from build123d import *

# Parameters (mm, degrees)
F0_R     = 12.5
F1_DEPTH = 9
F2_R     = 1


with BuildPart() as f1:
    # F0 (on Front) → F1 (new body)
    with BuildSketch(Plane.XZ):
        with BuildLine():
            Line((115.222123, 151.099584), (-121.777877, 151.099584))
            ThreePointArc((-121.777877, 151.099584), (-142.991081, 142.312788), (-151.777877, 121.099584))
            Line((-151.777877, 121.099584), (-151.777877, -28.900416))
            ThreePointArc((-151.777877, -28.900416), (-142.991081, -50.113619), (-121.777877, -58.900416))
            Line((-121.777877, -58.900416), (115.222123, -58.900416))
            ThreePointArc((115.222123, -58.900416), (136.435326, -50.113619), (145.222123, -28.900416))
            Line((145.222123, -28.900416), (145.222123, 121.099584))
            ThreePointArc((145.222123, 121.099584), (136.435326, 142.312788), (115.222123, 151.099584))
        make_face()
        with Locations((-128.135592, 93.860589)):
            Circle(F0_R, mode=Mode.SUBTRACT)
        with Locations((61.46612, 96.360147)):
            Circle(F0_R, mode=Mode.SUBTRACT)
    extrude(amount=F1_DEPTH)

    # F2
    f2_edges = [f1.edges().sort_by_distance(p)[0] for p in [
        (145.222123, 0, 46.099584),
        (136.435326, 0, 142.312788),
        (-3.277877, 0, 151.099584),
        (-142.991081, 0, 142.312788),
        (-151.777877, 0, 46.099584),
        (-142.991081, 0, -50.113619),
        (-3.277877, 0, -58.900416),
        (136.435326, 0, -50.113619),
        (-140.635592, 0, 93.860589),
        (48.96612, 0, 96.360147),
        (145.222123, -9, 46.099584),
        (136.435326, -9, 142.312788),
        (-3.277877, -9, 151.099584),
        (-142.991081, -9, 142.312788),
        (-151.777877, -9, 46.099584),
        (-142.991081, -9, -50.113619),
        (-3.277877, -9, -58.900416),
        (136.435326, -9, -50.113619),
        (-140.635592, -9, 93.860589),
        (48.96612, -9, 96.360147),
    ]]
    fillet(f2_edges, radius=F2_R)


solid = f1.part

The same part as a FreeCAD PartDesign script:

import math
import FreeCAD as App
import Part
import Sketcher
Q = App.Units.Quantity


def edges_at(feature, points):
    """Names of the edges that pass closest to the given points."""
    edges = feature.Shape.Edges
    near = lambda p: min(range(len(edges)), key=lambda i: edges[i].distToShape(Part.Vertex(*p))[0])
    return sorted({f"Edge{near(p) + 1}" for p in points})

doc = App.newDocument("Part")
body = doc.addObject("PartDesign::Body", "Body")

sketch1 = body.newObject("Sketcher::SketchObject", "Sketch")
sketch1.AttachmentSupport = (doc.getObject("XZ_Plane"), [""])
sketch1.MapMode = "FlatFace"
sketch1.addGeometry(Part.LineSegment(App.Vector(115, 151, 0), App.Vector(-122, 151, 0)), False)
sketch1.addGeometry(Part.ArcOfCircle(Part.Circle(App.Vector(-122, 121, 0), App.Vector(0, 0, 1), 30), math.radians(90), math.radians(180)), False)
sketch1.addGeometry(Part.LineSegment(App.Vector(-152, 121, 0), App.Vector(-152, -29, 0)), False)
sketch1.addGeometry(Part.ArcOfCircle(Part.Circle(App.Vector(-122, -29, 0), App.Vector(0, 0, 1), 30), math.radians(180), math.radians(270)), False)
sketch1.addGeometry(Part.LineSegment(App.Vector(-122, -59, 0), App.Vector(115, -59, 0)), False)
sketch1.addGeometry(Part.ArcOfCircle(Part.Circle(App.Vector(115, -29, 0), App.Vector(0, 0, 1), 30), math.radians(-90), math.radians(0)), False)
sketch1.addGeometry(Part.LineSegment(App.Vector(145, -29, 0), App.Vector(145, 121, 0)), False)
sketch1.addGeometry(Part.ArcOfCircle(Part.Circle(App.Vector(115, 121, 0), App.Vector(0, 0, 1), 30), math.radians(0), math.radians(90)), False)
sketch1.addGeometry(Part.Circle(App.Vector(-128, 94, 0), App.Vector(0, 0, 1), 12), False)
sketch1.addGeometry(Part.Circle(App.Vector(61, 96, 0), App.Vector(0, 0, 1), 12), False)
sketch1.addConstraint(Sketcher.Constraint("Tangent", 0, 2, 1, 1))
sketch1.addConstraint(Sketcher.Constraint("Tangent", 1, 2, 2, 1))
sketch1.addConstraint(Sketcher.Constraint("Tangent", 2, 2, 3, 1))
sketch1.addConstraint(Sketcher.Constraint("Tangent", 3, 2, 4, 1))
sketch1.addConstraint(Sketcher.Constraint("Tangent", 4, 2, 5, 1))
sketch1.addConstraint(Sketcher.Constraint("Tangent", 5, 2, 6, 1))
sketch1.addConstraint(Sketcher.Constraint("Tangent", 6, 2, 7, 1))
sketch1.addConstraint(Sketcher.Constraint("Tangent", 7, 2, 0, 1))
sketch1.addConstraint(Sketcher.Constraint("Horizontal", 0))
sketch1.addConstraint(Sketcher.Constraint("Vertical", 2))
sketch1.addConstraint(Sketcher.Constraint("Horizontal", 4))
sketch1.addConstraint(Sketcher.Constraint("Vertical", 6))
sketch1.addConstraint(Sketcher.Constraint("Equal", 1, 3))
sketch1.addConstraint(Sketcher.Constraint("Equal", 3, 5))
sketch1.addConstraint(Sketcher.Constraint("Equal", 5, 7))
sketch1.addConstraint(Sketcher.Constraint("Equal", 8, 9))
sketch1.addConstraint(Sketcher.Constraint("Diameter", 8, Q("25 mm")))
sketch1.addConstraint(Sketcher.Constraint("Radius", 1, Q("29.999998 mm")))
sketch1.addConstraint(Sketcher.Constraint("DistanceX", 0, 2, 0, 1, Q("237 mm")))
sketch1.addConstraint(Sketcher.Constraint("DistanceY", 2, 2, 2, 1, Q("150 mm")))
sketch1.addConstraint(Sketcher.Constraint("DistanceX", 9, 3, 5, 3, Q("53.756002 mm")))
sketch1.addConstraint(Sketcher.Constraint("DistanceX", 1, 3, -1, 1, Q("121.777879 mm")))
sketch1.addConstraint(Sketcher.Constraint("DistanceX", 8, 3, -1, 1, Q("128.135592 mm")))
sketch1.addConstraint(Sketcher.Constraint("DistanceY", -1, 1, 8, 3, Q("93.860589 mm")))
sketch1.addConstraint(Sketcher.Constraint("DistanceY", 5, 3, 9, 3, Q("125.260562 mm")))
sketch1.addConstraint(Sketcher.Constraint("DistanceY", -1, 1, 1, 3, Q("121.099586 mm")))
pad1 = body.newObject("PartDesign::Pad", "Pad")
pad1.Profile = sketch1
pad1.Length = 9
doc.recompute()

fillet = body.newObject("PartDesign::Fillet", "Fillet")
fillet.Base = (pad1, edges_at(pad1, [
    (145.222, 0, 46.1),
    (136.435, 0, 142.313),
    (-3.278, 0, 151.1),
    (-142.991, 0, 142.313),
    (-151.778, 0, 46.1),
    (-142.991, 0, -50.114),
    (-3.278, 0, -58.9),
    (136.435, 0, -50.114),
    (-140.636, 0, 93.861),
    (48.966, 0, 96.36),
    (145.222, -9, 46.1),
    (136.435, -9, 142.313),
    (-3.278, -9, 151.1),
    (-142.991, -9, 142.313),
    (-151.778, -9, 46.1),
    (-142.991, -9, -50.114),
    (-3.278, -9, -58.9),
    (136.435, -9, -50.114),
    (-140.636, -9, 93.861),
    (48.966, -9, 96.36),
]))
fillet.Radius = 1

doc.recompute()
